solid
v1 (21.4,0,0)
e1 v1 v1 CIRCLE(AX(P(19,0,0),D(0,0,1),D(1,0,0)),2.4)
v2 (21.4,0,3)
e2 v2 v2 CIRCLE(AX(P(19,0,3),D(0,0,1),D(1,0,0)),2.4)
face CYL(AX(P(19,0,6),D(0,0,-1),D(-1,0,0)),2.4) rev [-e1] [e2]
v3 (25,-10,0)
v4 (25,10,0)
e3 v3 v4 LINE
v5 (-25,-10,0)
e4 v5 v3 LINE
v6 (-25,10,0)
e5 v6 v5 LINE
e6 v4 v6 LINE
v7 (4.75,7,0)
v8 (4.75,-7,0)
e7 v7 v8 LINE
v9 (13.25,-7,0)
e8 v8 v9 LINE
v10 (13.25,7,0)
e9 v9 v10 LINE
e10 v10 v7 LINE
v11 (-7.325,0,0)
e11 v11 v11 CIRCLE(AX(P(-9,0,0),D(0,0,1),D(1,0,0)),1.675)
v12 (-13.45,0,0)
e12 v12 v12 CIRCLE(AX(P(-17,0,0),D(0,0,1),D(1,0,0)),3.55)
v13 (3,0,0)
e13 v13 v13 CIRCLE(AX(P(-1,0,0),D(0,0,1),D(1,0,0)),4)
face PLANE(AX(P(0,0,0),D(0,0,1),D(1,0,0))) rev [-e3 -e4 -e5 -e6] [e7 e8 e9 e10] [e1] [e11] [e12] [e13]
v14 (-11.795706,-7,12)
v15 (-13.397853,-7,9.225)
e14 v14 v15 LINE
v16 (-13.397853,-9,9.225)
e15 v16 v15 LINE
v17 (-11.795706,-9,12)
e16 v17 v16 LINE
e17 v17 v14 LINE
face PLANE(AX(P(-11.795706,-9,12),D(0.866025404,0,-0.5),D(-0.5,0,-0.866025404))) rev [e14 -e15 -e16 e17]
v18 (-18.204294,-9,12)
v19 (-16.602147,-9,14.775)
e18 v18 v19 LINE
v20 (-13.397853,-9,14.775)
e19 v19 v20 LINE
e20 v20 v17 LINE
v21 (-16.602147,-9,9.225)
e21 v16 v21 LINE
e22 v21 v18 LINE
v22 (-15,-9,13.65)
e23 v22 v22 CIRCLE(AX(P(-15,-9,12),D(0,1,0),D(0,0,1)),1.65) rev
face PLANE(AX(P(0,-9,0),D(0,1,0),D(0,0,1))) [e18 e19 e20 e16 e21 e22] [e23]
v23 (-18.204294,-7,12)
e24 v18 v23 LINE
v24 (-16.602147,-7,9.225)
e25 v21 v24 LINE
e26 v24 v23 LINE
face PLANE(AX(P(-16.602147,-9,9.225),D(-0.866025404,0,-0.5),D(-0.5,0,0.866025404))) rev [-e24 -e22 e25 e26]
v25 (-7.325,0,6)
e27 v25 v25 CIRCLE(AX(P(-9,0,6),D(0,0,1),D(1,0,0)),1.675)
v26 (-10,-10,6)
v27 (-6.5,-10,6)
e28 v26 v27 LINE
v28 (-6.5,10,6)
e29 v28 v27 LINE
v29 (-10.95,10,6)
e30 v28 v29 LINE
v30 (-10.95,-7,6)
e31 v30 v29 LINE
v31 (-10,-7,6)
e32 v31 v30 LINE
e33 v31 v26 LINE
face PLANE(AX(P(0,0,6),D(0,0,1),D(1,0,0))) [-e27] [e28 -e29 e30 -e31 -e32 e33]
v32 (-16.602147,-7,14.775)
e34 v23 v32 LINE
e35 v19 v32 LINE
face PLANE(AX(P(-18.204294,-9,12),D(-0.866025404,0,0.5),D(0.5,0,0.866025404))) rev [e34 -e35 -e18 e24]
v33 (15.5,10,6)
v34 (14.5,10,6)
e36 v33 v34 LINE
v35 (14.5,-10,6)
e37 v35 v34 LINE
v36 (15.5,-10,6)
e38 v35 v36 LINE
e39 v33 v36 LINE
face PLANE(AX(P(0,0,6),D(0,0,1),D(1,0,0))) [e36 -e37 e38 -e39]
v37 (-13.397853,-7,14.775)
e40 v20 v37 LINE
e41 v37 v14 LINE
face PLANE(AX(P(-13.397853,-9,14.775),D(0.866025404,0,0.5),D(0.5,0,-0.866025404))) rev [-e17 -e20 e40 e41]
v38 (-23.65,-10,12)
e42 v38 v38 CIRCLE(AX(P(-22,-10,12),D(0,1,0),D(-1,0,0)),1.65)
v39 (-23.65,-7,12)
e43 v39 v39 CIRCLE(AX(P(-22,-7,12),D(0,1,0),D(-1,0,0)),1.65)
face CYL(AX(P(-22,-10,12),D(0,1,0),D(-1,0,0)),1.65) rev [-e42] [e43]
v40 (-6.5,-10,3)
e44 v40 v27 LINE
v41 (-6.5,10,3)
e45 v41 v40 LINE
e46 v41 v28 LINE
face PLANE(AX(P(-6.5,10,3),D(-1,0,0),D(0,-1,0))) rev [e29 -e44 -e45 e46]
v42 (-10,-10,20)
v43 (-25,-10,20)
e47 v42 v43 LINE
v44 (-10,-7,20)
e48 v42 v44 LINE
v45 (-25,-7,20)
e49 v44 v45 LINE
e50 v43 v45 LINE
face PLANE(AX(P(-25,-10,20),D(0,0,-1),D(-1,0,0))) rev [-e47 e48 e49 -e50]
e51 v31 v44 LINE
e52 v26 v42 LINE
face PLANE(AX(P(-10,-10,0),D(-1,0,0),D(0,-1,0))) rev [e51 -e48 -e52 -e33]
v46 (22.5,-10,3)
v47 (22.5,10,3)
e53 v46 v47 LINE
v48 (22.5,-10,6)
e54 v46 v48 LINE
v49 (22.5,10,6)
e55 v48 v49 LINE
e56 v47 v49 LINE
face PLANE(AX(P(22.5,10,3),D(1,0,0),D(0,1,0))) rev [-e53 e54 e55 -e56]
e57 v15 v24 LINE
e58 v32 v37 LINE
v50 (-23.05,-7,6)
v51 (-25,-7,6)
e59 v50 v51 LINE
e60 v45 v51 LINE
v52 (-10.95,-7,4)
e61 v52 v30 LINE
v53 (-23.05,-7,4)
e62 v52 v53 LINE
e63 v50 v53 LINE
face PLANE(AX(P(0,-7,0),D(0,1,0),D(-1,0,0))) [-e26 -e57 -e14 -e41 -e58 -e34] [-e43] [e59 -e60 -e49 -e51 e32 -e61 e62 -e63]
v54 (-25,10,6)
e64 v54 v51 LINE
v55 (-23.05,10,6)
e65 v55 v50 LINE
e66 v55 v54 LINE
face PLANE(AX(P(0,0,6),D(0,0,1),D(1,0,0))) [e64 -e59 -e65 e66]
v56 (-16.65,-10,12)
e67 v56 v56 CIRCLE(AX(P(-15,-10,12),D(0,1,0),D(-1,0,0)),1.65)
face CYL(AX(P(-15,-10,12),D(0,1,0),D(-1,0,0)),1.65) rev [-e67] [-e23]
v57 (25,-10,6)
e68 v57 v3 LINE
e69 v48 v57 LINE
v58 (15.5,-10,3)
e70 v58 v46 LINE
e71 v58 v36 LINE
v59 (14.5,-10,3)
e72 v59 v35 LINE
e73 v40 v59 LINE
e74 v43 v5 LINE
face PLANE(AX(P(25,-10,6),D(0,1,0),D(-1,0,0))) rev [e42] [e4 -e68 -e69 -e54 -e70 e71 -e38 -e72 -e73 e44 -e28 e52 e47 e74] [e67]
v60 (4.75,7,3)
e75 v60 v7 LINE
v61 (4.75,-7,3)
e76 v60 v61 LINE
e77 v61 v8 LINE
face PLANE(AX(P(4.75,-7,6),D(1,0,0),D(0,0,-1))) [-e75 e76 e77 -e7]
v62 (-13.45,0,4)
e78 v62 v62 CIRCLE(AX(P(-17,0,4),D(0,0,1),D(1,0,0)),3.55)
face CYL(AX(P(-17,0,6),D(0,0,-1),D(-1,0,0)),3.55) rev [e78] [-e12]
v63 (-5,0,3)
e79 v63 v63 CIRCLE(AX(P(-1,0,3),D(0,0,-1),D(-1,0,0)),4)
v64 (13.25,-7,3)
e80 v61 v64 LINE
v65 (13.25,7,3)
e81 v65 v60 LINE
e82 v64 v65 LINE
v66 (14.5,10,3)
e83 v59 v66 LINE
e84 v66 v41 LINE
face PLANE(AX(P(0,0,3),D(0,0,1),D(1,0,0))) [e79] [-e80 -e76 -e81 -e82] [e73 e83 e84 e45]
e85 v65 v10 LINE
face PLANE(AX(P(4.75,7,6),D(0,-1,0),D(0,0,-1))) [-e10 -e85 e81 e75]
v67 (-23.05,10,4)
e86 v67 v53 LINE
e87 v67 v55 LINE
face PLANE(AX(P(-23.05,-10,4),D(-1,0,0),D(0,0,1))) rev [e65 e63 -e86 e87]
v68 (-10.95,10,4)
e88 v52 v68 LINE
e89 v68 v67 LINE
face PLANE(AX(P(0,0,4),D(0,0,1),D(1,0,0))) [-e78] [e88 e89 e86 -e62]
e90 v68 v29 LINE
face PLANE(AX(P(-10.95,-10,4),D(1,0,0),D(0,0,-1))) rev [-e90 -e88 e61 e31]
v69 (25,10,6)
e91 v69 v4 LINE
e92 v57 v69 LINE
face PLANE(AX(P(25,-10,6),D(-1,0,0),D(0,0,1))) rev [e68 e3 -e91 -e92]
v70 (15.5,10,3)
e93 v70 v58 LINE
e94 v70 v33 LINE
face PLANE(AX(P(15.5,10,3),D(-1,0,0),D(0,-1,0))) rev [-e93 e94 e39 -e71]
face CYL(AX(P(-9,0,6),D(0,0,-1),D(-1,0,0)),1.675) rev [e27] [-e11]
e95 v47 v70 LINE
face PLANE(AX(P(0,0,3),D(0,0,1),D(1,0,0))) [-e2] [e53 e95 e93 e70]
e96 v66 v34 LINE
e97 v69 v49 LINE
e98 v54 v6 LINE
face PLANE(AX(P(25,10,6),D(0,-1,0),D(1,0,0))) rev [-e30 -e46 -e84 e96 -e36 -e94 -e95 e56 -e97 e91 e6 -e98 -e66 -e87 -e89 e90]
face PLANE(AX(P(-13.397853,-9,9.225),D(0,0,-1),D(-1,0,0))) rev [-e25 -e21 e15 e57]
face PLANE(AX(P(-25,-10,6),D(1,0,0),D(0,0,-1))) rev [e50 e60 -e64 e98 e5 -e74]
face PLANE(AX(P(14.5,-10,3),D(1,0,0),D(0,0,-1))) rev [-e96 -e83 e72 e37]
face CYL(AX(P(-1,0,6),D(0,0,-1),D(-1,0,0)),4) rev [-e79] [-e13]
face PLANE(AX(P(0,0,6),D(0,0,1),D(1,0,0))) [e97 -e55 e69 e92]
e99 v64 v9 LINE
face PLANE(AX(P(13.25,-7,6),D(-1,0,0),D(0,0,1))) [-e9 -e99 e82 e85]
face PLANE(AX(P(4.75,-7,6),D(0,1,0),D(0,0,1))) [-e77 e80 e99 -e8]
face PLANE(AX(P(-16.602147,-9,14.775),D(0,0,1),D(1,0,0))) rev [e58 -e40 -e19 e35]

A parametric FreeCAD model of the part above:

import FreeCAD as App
import Part
import Sketcher
Q = App.Units.Quantity


def add_polygon(sketch, points):
    """Adds a closed chain of lines whose ends are joined by coincident constraints."""
    first, n = sketch.GeometryCount, len(points)
    for a, b in zip(points, points[1:] + points[:1]):
        sketch.addGeometry(Part.LineSegment(App.Vector(*a, 0), App.Vector(*b, 0)), False)
    for i in range(n):
        sketch.addConstraint(Sketcher.Constraint("Coincident", first + i, 2, first + (i + 1) % n, 1))

doc = App.newDocument("Part")
params = doc.addObject("Spreadsheet::Sheet", "Params")
for row, (alias, value) in enumerate([
    ("sketch1_diameter", "8 mm"),
    ("sketch1_diameter2", "7.1 mm"),
    ("sketch1_diameter3", "4.8 mm"),
    ("sketch1_diameter4", "3.35 mm"),
    ("sketch1_width", "50 mm"),
    ("pad1_length", "6 mm"),
    ("sketch2_width", "11 mm"),
    ("sketch2_height", "20 mm"),
    ("pocket1_length", "3 mm"),
    ("sketch3_height", "20 mm"),
    ("sketch3_width", "12.1 mm"),
    ("pocket2_length", "2 mm"),
    ("sketch4_width", "15 mm"),
    ("sketch4_height", "20 mm"),
    ("pad2_length", "3 mm"),
    ("sketch5_diameter", "3.3 mm"),
    ("pocket3_length", "3 mm"),
    ("pocket4_length", "2 mm"),
    ("sketch7_width", "7 mm"),
    ("sketch7_width2", "10 mm"),
    ("sketch7_height", "20 mm"),
    ("pocket5_length", "3 mm"),
], start=1):
    params.set(f"A{row}", alias)
    params.set(f"B{row}", "=" + value)
    params.setAlias(f"B{row}", alias)

body = doc.addObject("PartDesign::Body", "Body")

sketch1 = body.newObject("Sketcher::SketchObject", "Sketch")
sketch1.AttachmentSupport = (doc.getObject("XY_Plane"), [""])
sketch1.MapMode = "FlatFace"
add_polygon(sketch1, [(-25, 10), (-25, -10), (25, -10), (25, 10)])
sketch1.addGeometry(Part.Circle(App.Vector(-17, 0, 0), App.Vector(0, 0, 1), 3.5), False)
sketch1.addGeometry(Part.Circle(App.Vector(-9, 0, 0), App.Vector(0, 0, 1), 1.7), False)
sketch1.addGeometry(Part.Circle(App.Vector(-1, 0, 0), App.Vector(0, 0, 1), 4), False)
add_polygon(sketch1, [(13.2, -7), (4.8, -7), (4.8, 7), (13.2, 7)])
sketch1.addGeometry(Part.Circle(App.Vector(19, 0, 0), App.Vector(0, 0, 1), 2.4), False)
sketch1.addConstraint([
    Sketcher.Constraint("Vertical", 0),
    Sketcher.Constraint("Horizontal", 1),
    Sketcher.Constraint("Vertical", 2),
    Sketcher.Constraint("Horizontal", 3),
    Sketcher.Constraint("Horizontal", 7),
    Sketcher.Constraint("Vertical", 8),
    Sketcher.Constraint("Horizontal", 9),
    Sketcher.Constraint("Vertical", 10),
    Sketcher.Constraint("Symmetric", 0, 2, 2, 2, -1, 1),
    Sketcher.Constraint("PointOnObject", 4, 3, -1),
    Sketcher.Constraint("PointOnObject", 5, 3, -1),
    Sketcher.Constraint("PointOnObject", 6, 3, -1),
    Sketcher.Constraint("PointOnObject", 11, 3, -1),
    Sketcher.Constraint("Diameter", 6, 8.0),
    Sketcher.Constraint("Diameter", 4, 7.1),
    Sketcher.Constraint("Diameter", 11, 4.8),
    Sketcher.Constraint("Diameter", 5, 3.35),
    Sketcher.Constraint("DistanceX", 1, 1, 1, 2, 50.0),
    Sketcher.Constraint("DistanceY", 0, 2, 0, 1, 20.0),
    Sketcher.Constraint("DistanceY", 8, 1, 8, 2, 14.0),
    Sketcher.Constraint("DistanceX", 7, 2, 7, 1, 8.5),
    Sketcher.Constraint("DistanceX", 4, 3, -1, 1, 17.0),
    Sketcher.Constraint("DistanceX", 5, 3, -1, 1, 9.0),
    Sketcher.Constraint("DistanceX", 6, 3, -1, 1, 1.0),
    Sketcher.Constraint("DistanceX", -1, 1, 11, 3, 19.0),
    Sketcher.Constraint("DistanceY", 7, 2, -1, 1, 7.0),
    Sketcher.Constraint("DistanceX", -1, 1, 7, 2, 4.75),
])
sketch1.setExpression("Constraints[21]", "Params.sketch1_diameter")
sketch1.setExpression("Constraints[22]", "Params.sketch1_diameter2")
sketch1.setExpression("Constraints[23]", "Params.sketch1_diameter3")
sketch1.setExpression("Constraints[24]", "Params.sketch1_diameter4")
sketch1.setExpression("Constraints[25]", "Params.sketch1_width")
pad1 = body.newObject("PartDesign::Pad", "Pad")
pad1.Profile = sketch1
pad1.setExpression("Length", "Params.pad1_length")

sketch2 = body.newObject("Sketcher::SketchObject", "Sketch001")
sketch2.AttachmentSupport = (doc.getObject("XY_Plane"), [""])
sketch2.MapMode = "FlatFace"
sketch2.AttachmentOffset = App.Placement(App.Vector(0, 0, 6), App.Rotation())
add_polygon(sketch2, [(4, 10), (4, -10), (14, -10), (14, 10)])
sketch2.addConstraint([
    Sketcher.Constraint("Vertical", 0),
    Sketcher.Constraint("Horizontal", 1),
    Sketcher.Constraint("Vertical", 2),
    Sketcher.Constraint("Horizontal", 3),
    Sketcher.Constraint("DistanceX", 1, 1, 1, 2, 11.0),
    Sketcher.Constraint("DistanceY", 0, 2, 0, 1, 20.0),
    Sketcher.Constraint("DistanceY", 0, 2, -1, 1, 10.0),
    Sketcher.Constraint("DistanceX", -1, 1, 0, 2, 3.5),
])
sketch2.setExpression("Constraints[8]", "Params.sketch2_width")
sketch2.setExpression("Constraints[9]", "Params.sketch2_height")
pocket1 = body.newObject("PartDesign::Pocket", "Pocket")
pocket1.Profile = sketch2
pocket1.setExpression("Length", "Params.pocket1_length")

sketch3 = body.newObject("Sketcher::SketchObject", "Sketch002")
sketch3.AttachmentSupport = (doc.getObject("XY_Plane"), [""])
sketch3.MapMode = "FlatFace"
sketch3.AttachmentOffset = App.Placement(App.Vector(0, 0, 6), App.Rotation())
add_polygon(sketch3, [(-23, 10), (-23, -10), (-11, -10), (-11, 10)])
sketch3.addConstraint([
    Sketcher.Constraint("Vertical", 0),
    Sketcher.Constraint("Horizontal", 1),
    Sketcher.Constraint("Vertical", 2),
    Sketcher.Constraint("Horizontal", 3),
    Sketcher.Constraint("DistanceY", 0, 2, 0, 1, 20.0),
    Sketcher.Constraint("DistanceX", 1, 1, 1, 2, 12.1),
    Sketcher.Constraint("DistanceY", 0, 2, -1, 1, 10.0),
    Sketcher.Constraint("DistanceX", 0, 2, -1, 1, 23.05),
])
sketch3.setExpression("Constraints[8]", "Params.sketch3_height")
sketch3.setExpression("Constraints[9]", "Params.sketch3_width")
pocket2 = body.newObject("PartDesign::Pocket", "Pocket001")
pocket2.Profile = sketch3
pocket2.setExpression("Length", "Params.pocket2_length")

sketch4 = body.newObject("Sketcher::SketchObject", "Sketch003")
sketch4.AttachmentSupport = (doc.getObject("XZ_Plane"), [""])
sketch4.MapMode = "FlatFace"
sketch4.AttachmentOffset = App.Placement(App.Vector(0, 0, 7), App.Rotation())
add_polygon(sketch4, [(-25, 20), (-25, 0), (-10, 0), (-10, 20)])
sketch4.addConstraint([
    Sketcher.Constraint("Vertical", 0),
    Sketcher.Constraint("Horizontal", 1),
    Sketcher.Constraint("Vertical", 2),
    Sketcher.Constraint("Horizontal", 3),
    Sketcher.Constraint("PointOnObject", 0, 2, -1),
    Sketcher.Constraint("DistanceX", 1, 1, 1, 2, 15.0),
    Sketcher.Constraint("DistanceY", 0, 2, 0, 1, 20.0),
    Sketcher.Constraint("DistanceX", 0, 2, -1, 1, 25.0),
])
sketch4.setExpression("Constraints[9]", "Params.sketch4_width")
sketch4.setExpression("Constraints[10]", "Params.sketch4_height")
pad2 = body.newObject("PartDesign::Pad", "Pad001")
pad2.Profile = sketch4
pad2.setExpression("Length", "Params.pad2_length")

sketch5 = body.newObject("Sketcher::SketchObject", "Sketch004")
sketch5.AttachmentSupport = (doc.getObject("XZ_Plane"), [""])
sketch5.MapMode = "FlatFace"
sketch5.AttachmentOffset = App.Placement(App.Vector(0, 0, 7), App.Rotation())
sketch5.addGeometry([
    Part.Circle(App.Vector(-22, 12, 0), App.Vector(0, 0, 1), 1.6),
    Part.Circle(App.Vector(-15, 12, 0), App.Vector(0, 0, 1), 1.6),
], False)
sketch5.addConstraint([
    Sketcher.Constraint("Equal", 0, 1),
    Sketcher.Constraint("Horizontal", 0, 3, 1, 3),
    Sketcher.Constraint("Diameter", 0, 3.3),
    Sketcher.Constraint("DistanceX", 0, 3, -1, 1, 22.0),
    Sketcher.Constraint("DistanceY", -1, 1, 0, 3, 12.0),
    Sketcher.Constraint("DistanceX", 1, 3, -1, 1, 15.0),
])
sketch5.setExpression("Constraints[2]", "Params.sketch5_diameter")
pocket3 = body.newObject("PartDesign::Pocket", "Pocket002")
pocket3.Profile = sketch5
pocket3.setExpression("Length", "Params.pocket3_length")
pocket3.Reversed = True

sketch6 = body.newObject("Sketcher::SketchObject", "Sketch005")
sketch6.AttachmentSupport = (doc.getObject("XZ_Plane"), [""])
sketch6.MapMode = "FlatFace"
sketch6.AttachmentOffset = App.Placement(App.Vector(0, 0, 7), App.Rotation())
add_polygon(sketch6, [(-13.4, 9.2), (-16.6, 9.2), (-18.2, 12), (-16.6, 14.8), (-13.4, 14.8), (-11.8, 12)])
sketch6.addConstraint([
    Sketcher.Constraint("Horizontal", 0),
    Sketcher.Constraint("Horizontal", 3),
    Sketcher.Constraint("Parallel", 1, 4),
    Sketcher.Constraint("Parallel", 2, 5),
    Sketcher.Constraint("Horizontal", 1, 2, 4, 2),
    Sketcher.Constraint("Vertical", 0, 2, 2, 2),
    Sketcher.Constraint("Vertical", 3, 2, 5, 2),
    Sketcher.Constraint("Angle", 1, Q("120 deg")),
    Sketcher.Constraint("DistanceY", -1, 1, 1, 2, 12.0),
    Sketcher.Constraint("DistanceY", 0, 2, 2, 2, 5.55),
    Sketcher.Constraint("DistanceX", 0, 2, 0, 1, 3.204294),
    Sketcher.Constraint("DistanceX", 0, 2, -1, 1, 16.602147),
])
pocket4 = body.newObject("PartDesign::Pocket", "Pocket003")
pocket4.Profile = sketch6
pocket4.setExpression("Length", "Params.pocket4_length")
pocket4.Reversed = True

sketch7 = body.newObject("Sketcher::SketchObject", "Sketch006")
sketch7.AttachmentSupport = (doc.getObject("XY_Plane"), [""])
sketch7.MapMode = "FlatFace"
sketch7.AttachmentOffset = App.Placement(App.Vector(0, 0, 6), App.Rotation())
add_polygon(sketch7, [(16, 10), (16, -10), (22, -10), (22, 10)])
add_polygon(sketch7, [(-6, 10), (-6, -10), (4, -10), (4, 10)])
sketch7.addConstraint([
    Sketcher.Constraint("Vertical", 0),
    Sketcher.Constraint("Horizontal", 1),
    Sketcher.Constraint("Vertical", 2),
    Sketcher.Constraint("Horizontal", 3),
    Sketcher.Constraint("Vertical", 4),
    Sketcher.Constraint("Horizontal", 5),
    Sketcher.Constraint("Vertical", 6),
    Sketcher.Constraint("Horizontal", 7),
    Sketcher.Constraint("Horizontal", 1, 2, 4, 2),
    Sketcher.Constraint("Horizontal", 3, 2, 6, 2),
    Sketcher.Constraint("DistanceX", 1, 1, 1, 2, 7.0),
    Sketcher.Constraint("DistanceX", 5, 1, 5, 2, 10.0),
    Sketcher.Constraint("DistanceY", 0, 2, 0, 1, 20.0),
    Sketcher.Constraint("DistanceY", 0, 2, -1, 1, 10.0),
    Sketcher.Constraint("DistanceX", 4, 2, 0, 2, 22.0),
    Sketcher.Constraint("DistanceX", -1, 1, 0, 2, 15.5),
])
sketch7.setExpression("Constraints[18]", "Params.sketch7_width")
sketch7.setExpression("Constraints[19]", "Params.sketch7_width2")
sketch7.setExpression("Constraints[20]", "Params.sketch7_height")
pocket5 = body.newObject("PartDesign::Pocket", "Pocket004")
pocket5.Profile = sketch7
pocket5.setExpression("Length", "Params.pocket5_length")

doc.recompute()
